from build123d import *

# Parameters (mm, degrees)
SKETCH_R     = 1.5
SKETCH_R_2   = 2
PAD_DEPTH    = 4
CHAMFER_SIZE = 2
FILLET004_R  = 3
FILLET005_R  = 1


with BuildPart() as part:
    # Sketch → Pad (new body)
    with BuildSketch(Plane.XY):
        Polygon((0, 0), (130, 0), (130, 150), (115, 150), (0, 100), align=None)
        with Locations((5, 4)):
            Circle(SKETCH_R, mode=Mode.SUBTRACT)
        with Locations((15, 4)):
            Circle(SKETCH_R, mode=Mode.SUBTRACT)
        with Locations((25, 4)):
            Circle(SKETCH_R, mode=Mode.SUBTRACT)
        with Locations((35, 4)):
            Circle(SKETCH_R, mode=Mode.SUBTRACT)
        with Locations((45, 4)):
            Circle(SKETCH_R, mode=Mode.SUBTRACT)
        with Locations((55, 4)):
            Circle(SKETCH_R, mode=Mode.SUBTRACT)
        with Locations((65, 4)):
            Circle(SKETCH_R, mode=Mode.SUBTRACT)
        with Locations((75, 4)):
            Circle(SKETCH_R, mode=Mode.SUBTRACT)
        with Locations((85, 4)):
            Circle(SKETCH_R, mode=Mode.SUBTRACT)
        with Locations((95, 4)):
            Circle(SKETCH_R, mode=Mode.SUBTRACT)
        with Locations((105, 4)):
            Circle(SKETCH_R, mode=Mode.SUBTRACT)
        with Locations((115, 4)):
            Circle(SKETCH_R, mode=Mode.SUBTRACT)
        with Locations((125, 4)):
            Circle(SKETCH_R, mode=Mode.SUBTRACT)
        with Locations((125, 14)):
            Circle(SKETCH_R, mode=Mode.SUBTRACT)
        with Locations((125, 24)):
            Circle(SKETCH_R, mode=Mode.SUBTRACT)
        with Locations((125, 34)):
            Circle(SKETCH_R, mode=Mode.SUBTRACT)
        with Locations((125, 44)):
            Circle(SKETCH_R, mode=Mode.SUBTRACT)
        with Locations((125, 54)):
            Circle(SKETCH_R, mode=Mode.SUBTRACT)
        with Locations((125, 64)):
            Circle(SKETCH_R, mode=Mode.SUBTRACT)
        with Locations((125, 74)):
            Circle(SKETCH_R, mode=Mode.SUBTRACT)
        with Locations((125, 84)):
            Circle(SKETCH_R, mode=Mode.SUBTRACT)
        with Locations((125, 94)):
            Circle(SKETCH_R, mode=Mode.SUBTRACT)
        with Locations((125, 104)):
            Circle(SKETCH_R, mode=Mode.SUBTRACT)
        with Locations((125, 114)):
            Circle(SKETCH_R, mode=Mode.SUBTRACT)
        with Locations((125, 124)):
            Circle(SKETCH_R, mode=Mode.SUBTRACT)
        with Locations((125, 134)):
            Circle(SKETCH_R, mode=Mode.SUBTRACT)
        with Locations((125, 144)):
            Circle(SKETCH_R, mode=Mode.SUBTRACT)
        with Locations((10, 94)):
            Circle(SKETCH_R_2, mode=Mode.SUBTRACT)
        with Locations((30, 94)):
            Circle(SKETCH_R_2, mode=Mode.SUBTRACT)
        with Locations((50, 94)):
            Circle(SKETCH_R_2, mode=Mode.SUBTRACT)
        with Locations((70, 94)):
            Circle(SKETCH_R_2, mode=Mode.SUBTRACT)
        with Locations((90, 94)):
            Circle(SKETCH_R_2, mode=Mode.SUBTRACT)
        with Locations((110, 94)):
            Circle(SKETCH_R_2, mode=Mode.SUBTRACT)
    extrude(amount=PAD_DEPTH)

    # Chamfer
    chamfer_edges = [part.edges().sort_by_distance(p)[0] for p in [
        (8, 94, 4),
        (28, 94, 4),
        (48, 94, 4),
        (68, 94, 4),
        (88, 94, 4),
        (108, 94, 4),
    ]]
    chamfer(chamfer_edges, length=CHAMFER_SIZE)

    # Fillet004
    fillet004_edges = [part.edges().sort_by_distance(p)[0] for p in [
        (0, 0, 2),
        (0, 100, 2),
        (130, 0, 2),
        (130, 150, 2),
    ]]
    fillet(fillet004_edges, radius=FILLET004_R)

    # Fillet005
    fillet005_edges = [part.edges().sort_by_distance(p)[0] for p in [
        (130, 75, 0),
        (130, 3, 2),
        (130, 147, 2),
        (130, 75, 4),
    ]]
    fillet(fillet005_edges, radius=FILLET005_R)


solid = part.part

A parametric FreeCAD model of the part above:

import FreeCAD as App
import Part
import Sketcher


def edges_at(feature, points):
    """Names of the edges that pass closest to the given points."""
    edges = feature.Shape.Edges
    near = lambda p: min(range(len(edges)), key=lambda i: edges[i].distToShape(Part.Vertex(*p))[0])
    return sorted({f"Edge{near(p) + 1}" for p in points})


def add_polygon(sketch, points):
    """Adds a closed chain of lines whose ends are joined by coincident constraints."""
    first, n = sketch.GeometryCount, len(points)
    for a, b in zip(points, points[1:] + points[:1]):
        sketch.addGeometry(Part.LineSegment(App.Vector(*a, 0), App.Vector(*b, 0)), False)
    for i in range(n):
        sketch.addConstraint(Sketcher.Constraint("Coincident", first + i, 2, first + (i + 1) % n, 1))

doc = App.newDocument("Part")
body = doc.addObject("PartDesign::Body", "Body")

sketch1 = body.newObject("Sketcher::SketchObject", "Sketch")
sketch1.AttachmentSupport = (doc.getObject("XY_Plane"), [""])
sketch1.MapMode = "FlatFace"
add_polygon(sketch1, [(0, 0), (130, 0), (130, 150), (115, 150), (0, 100)])
sketch1.addGeometry(Part.Circle(App.Vector(5, 4, 0), App.Vector(0, 0, 1), 1.5), False)
sketch1.addGeometry(Part.Circle(App.Vector(15, 4, 0), App.Vector(0, 0, 1), 1.5), False)
sketch1.addGeometry(Part.Circle(App.Vector(25, 4, 0), App.Vector(0, 0, 1), 1.5), False)
sketch1.addGeometry(Part.Circle(App.Vector(35, 4, 0), App.Vector(0, 0, 1), 1.5), False)
sketch1.addGeometry(Part.Circle(App.Vector(45, 4, 0), App.Vector(0, 0, 1), 1.5), False)
sketch1.addGeometry(Part.Circle(App.Vector(55, 4, 0), App.Vector(0, 0, 1), 1.5), False)
sketch1.addGeometry(Part.Circle(App.Vector(65, 4, 0), App.Vector(0, 0, 1), 1.5), False)
sketch1.addGeometry(Part.Circle(App.Vector(75, 4, 0), App.Vector(0, 0, 1), 1.5), False)
sketch1.addGeometry(Part.Circle(App.Vector(85, 4, 0), App.Vector(0, 0, 1), 1.5), False)
sketch1.addGeometry(Part.Circle(App.Vector(95, 4, 0), App.Vector(0, 0, 1), 1.5), False)
sketch1.addGeometry(Part.Circle(App.Vector(105, 4, 0), App.Vector(0, 0, 1), 1.5), False)
sketch1.addGeometry(Part.Circle(App.Vector(115, 4, 0), App.Vector(0, 0, 1), 1.5), False)
sketch1.addGeometry(Part.Circle(App.Vector(125, 4, 0), App.Vector(0, 0, 1), 1.5), False)
sketch1.addGeometry(Part.Circle(App.Vector(125, 14, 0), App.Vector(0, 0, 1), 1.5), False)
sketch1.addGeometry(Part.Circle(App.Vector(125, 24, 0), App.Vector(0, 0, 1), 1.5), False)
sketch1.addGeometry(Part.Circle(App.Vector(125, 34, 0), App.Vector(0, 0, 1), 1.5), False)
sketch1.addGeometry(Part.Circle(App.Vector(125, 44, 0), App.Vector(0, 0, 1), 1.5), False)
sketch1.addGeometry(Part.Circle(App.Vector(125, 54, 0), App.Vector(0, 0, 1), 1.5), False)
sketch1.addGeometry(Part.Circle(App.Vector(125, 64, 0), App.Vector(0, 0, 1), 1.5), False)
sketch1.addGeometry(Part.Circle(App.Vector(10, 94, 0), App.Vector(0, 0, 1), 2), False)
sketch1.addGeometry(Part.Circle(App.Vector(30, 94, 0), App.Vector(0, 0, 1), 2), False)
sketch1.addGeometry(Part.Circle(App.Vector(50, 94, 0), App.Vector(0, 0, 1), 2), False)
sketch1.addGeometry(Part.Circle(App.Vector(70, 94, 0), App.Vector(0, 0, 1), 2), False)
sketch1.addGeometry(Part.Circle(App.Vector(90, 94, 0), App.Vector(0, 0, 1), 2), False)
sketch1.addGeometry(Part.Circle(App.Vector(125, 74, 0), App.Vector(0, 0, 1), 1.5), False)
sketch1.addGeometry(Part.Circle(App.Vector(125, 84, 0), App.Vector(0, 0, 1), 1.5), False)
sketch1.addGeometry(Part.Circle(App.Vector(110, 94, 0), App.Vector(0, 0, 1), 2), False)
sketch1.addGeometry(Part.Circle(App.Vector(125, 94, 0), App.Vector(0, 0, 1), 1.5), False)
sketch1.addGeometry(Part.Circle(App.Vector(125, 104, 0), App.Vector(0, 0, 1), 1.5), False)
sketch1.addGeometry(Part.Circle(App.Vector(125, 114, 0), App.Vector(0, 0, 1), 1.5), False)
sketch1.addGeometry(Part.Circle(App.Vector(125, 124, 0), App.Vector(0, 0, 1), 1.5), False)
sketch1.addGeometry(Part.Circle(App.Vector(125, 134, 0), App.Vector(0, 0, 1), 1.5), False)
sketch1.addGeometry(Part.Circle(App.Vector(125, 144, 0), App.Vector(0, 0, 1), 1.5), False)
sketch1.addConstraint(Sketcher.Constraint("Horizontal", 0))
sketch1.addConstraint(Sketcher.Constraint("Vertical", 1))
sketch1.addConstraint(Sketcher.Constraint("Horizontal", 2))
sketch1.addConstraint(Sketcher.Constraint("Vertical", 4))
sketch1.addConstraint(Sketcher.Constraint("Coincident", 4, 2, -1, 1))
sketch1.addConstraint(Sketcher.Constraint("Equal", 5, 6))
sketch1.addConstraint(Sketcher.Constraint("Equal", 6, 7))
sketch1.addConstraint(Sketcher.Constraint("Equal", 7, 8))
sketch1.addConstraint(Sketcher.Constraint("Equal", 8, 9))
sketch1.addConstraint(Sketcher.Constraint("Equal", 9, 10))
sketch1.addConstraint(Sketcher.Constraint("Equal", 10, 11))
sketch1.addConstraint(Sketcher.Constraint("Equal", 11, 12))
sketch1.addConstraint(Sketcher.Constraint("Equal", 12, 13))
sketch1.addConstraint(Sketcher.Constraint("Equal", 13, 14))
sketch1.addConstraint(Sketcher.Constraint("Equal", 14, 15))
sketch1.addConstraint(Sketcher.Constraint("Equal", 15, 16))
sketch1.addConstraint(Sketcher.Constraint("Equal", 16, 17))
sketch1.addConstraint(Sketcher.Constraint("Equal", 17, 18))
sketch1.addConstraint(Sketcher.Constraint("Equal", 18, 19))
sketch1.addConstraint(Sketcher.Constraint("Equal", 19, 20))
sketch1.addConstraint(Sketcher.Constraint("Equal", 20, 21))
sketch1.addConstraint(Sketcher.Constraint("Equal", 21, 22))
sketch1.addConstraint(Sketcher.Constraint("Equal", 22, 23))
sketch1.addConstraint(Sketcher.Constraint("Equal", 24, 25))
sketch1.addConstraint(Sketcher.Constraint("Equal", 25, 26))
sketch1.addConstraint(Sketcher.Constraint("Equal", 26, 27))
sketch1.addConstraint(Sketcher.Constraint("Equal", 27, 28))
sketch1.addConstraint(Sketcher.Constraint("Equal", 23, 29))
sketch1.addConstraint(Sketcher.Constraint("Equal", 29, 30))
sketch1.addConstraint(Sketcher.Constraint("Equal", 28, 31))
sketch1.addConstraint(Sketcher.Constraint("Equal", 30, 32))
sketch1.addConstraint(Sketcher.Constraint("Equal", 32, 33))
sketch1.addConstraint(Sketcher.Constraint("Equal", 33, 34))
sketch1.addConstraint(Sketcher.Constraint("Equal", 34, 35))
sketch1.addConstraint(Sketcher.Constraint("Equal", 35, 36))
sketch1.addConstraint(Sketcher.Constraint("Equal", 36, 37))
sketch1.addConstraint(Sketcher.Constraint("Horizontal", 5, 3, 6, 3))
sketch1.addConstraint(Sketcher.Constraint("Horizontal", 6, 3, 7, 3))
sketch1.addConstraint(Sketcher.Constraint("Horizontal", 7, 3, 8, 3))
sketch1.addConstraint(Sketcher.Constraint("Horizontal", 8, 3, 9, 3))
sketch1.addConstraint(Sketcher.Constraint("Horizontal", 9, 3, 10, 3))
sketch1.addConstraint(Sketcher.Constraint("Horizontal", 10, 3, 11, 3))
sketch1.addConstraint(Sketcher.Constraint("Horizontal", 11, 3, 12, 3))
sketch1.addConstraint(Sketcher.Constraint("Horizontal", 12, 3, 13, 3))
sketch1.addConstraint(Sketcher.Constraint("Horizontal", 13, 3, 14, 3))
sketch1.addConstraint(Sketcher.Constraint("Horizontal", 14, 3, 15, 3))
sketch1.addConstraint(Sketcher.Constraint("Horizontal", 15, 3, 16, 3))
sketch1.addConstraint(Sketcher.Constraint("Horizontal", 16, 3, 17, 3))
sketch1.addConstraint(Sketcher.Constraint("Horizontal", 24, 3, 25, 3))
sketch1.addConstraint(Sketcher.Constraint("Horizontal", 25, 3, 26, 3))
sketch1.addConstraint(Sketcher.Constraint("Horizontal", 26, 3, 27, 3))
sketch1.addConstraint(Sketcher.Constraint("Horizontal", 27, 3, 28, 3))
sketch1.addConstraint(Sketcher.Constraint("Horizontal", 28, 3, 31, 3))
sketch1.addConstraint(Sketcher.Constraint("Horizontal", 31, 3, 32, 3))
sketch1.addConstraint(Sketcher.Constraint("Vertical", 17, 3, 18, 3))
sketch1.addConstraint(Sketcher.Constraint("Vertical", 18, 3, 19, 3))
sketch1.addConstraint(Sketcher.Constraint("Vertical", 19, 3, 20, 3))
sketch1.addConstraint(Sketcher.Constraint("Vertical", 20, 3, 21, 3))
sketch1.addConstraint(Sketcher.Constraint("Vertical", 21, 3, 22, 3))
sketch1.addConstraint(Sketcher.Constraint("Vertical", 22, 3, 23, 3))
sketch1.addConstraint(Sketcher.Constraint("Vertical", 23, 3, 29, 3))
sketch1.addConstraint(Sketcher.Constraint("Vertical", 29, 3, 30, 3))
sketch1.addConstraint(Sketcher.Constraint("Vertical", 30, 3, 32, 3))
sketch1.addConstraint(Sketcher.Constraint("Vertical", 32, 3, 33, 3))
sketch1.addConstraint(Sketcher.Constraint("Vertical", 33, 3, 34, 3))
sketch1.addConstraint(Sketcher.Constraint("Vertical", 34, 3, 35, 3))
sketch1.addConstraint(Sketcher.Constraint("Vertical", 35, 3, 36, 3))
sketch1.addConstraint(Sketcher.Constraint("Vertical", 36, 3, 37, 3))
sketch1.addConstraint(Sketcher.Constraint("Vertical", 16, 3, 2, 2))
sketch1.addConstraint(Sketcher.Constraint("Diameter", 5, 3.0))
sketch1.addConstraint(Sketcher.Constraint("Diameter", 24, 4.0))
sketch1.addConstraint(Sketcher.Constraint("DistanceX", 0, 1, 0, 2, 130.0))
sketch1.addConstraint(Sketcher.Constraint("DistanceX", 2, 2, 2, 1, 15.0))
sketch1.addConstraint(Sketcher.Constraint("DistanceY", 1, 1, 1, 2, 150.0))
sketch1.addConstraint(Sketcher.Constraint("DistanceY", 4, 2, 4, 1, 100.0))
sketch1.addConstraint(Sketcher.Constraint("DistanceX", -1, 1, 5, 3, 5.0))
sketch1.addConstraint(Sketcher.Constraint("DistanceY", -1, 1, 5, 3, 4.0))
sketch1.addConstraint(Sketcher.Constraint("DistanceX", -1, 1, 6, 3, 15.0))
sketch1.addConstraint(Sketcher.Constraint("DistanceX", -1, 1, 7, 3, 25.0))
sketch1.addConstraint(Sketcher.Constraint("DistanceX", -1, 1, 8, 3, 35.0))
sketch1.addConstraint(Sketcher.Constraint("DistanceX", -1, 1, 9, 3, 45.0))
sketch1.addConstraint(Sketcher.Constraint("DistanceX", -1, 1, 10, 3, 55.0))
sketch1.addConstraint(Sketcher.Constraint("DistanceX", -1, 1, 11, 3, 65.0))
sketch1.addConstraint(Sketcher.Constraint("DistanceX", -1, 1, 12, 3, 75.0))
sketch1.addConstraint(Sketcher.Constraint("DistanceX", -1, 1, 13, 3, 85.0))
sketch1.addConstraint(Sketcher.Constraint("DistanceX", -1, 1, 14, 3, 95.0))
sketch1.addConstraint(Sketcher.Constraint("DistanceX", -1, 1, 15, 3, 105.0))
sketch1.addConstraint(Sketcher.Constraint("DistanceX", -1, 1, 17, 3, 125.0))
sketch1.addConstraint(Sketcher.Constraint("DistanceY", -1, 1, 18, 3, 14.0))
sketch1.addConstraint(Sketcher.Constraint("DistanceY", -1, 1, 19, 3, 24.0))
sketch1.addConstraint(Sketcher.Constraint("DistanceY", -1, 1, 20, 3, 34.0))
sketch1.addConstraint(Sketcher.Constraint("DistanceY", -1, 1, 21, 3, 44.0))
sketch1.addConstraint(Sketcher.Constraint("DistanceY", -1, 1, 22, 3, 54.0))
sketch1.addConstraint(Sketcher.Constraint("DistanceY", -1, 1, 23, 3, 64.0))
sketch1.addConstraint(Sketcher.Constraint("DistanceX", -1, 1, 24, 3, 10.0))
sketch1.addConstraint(Sketcher.Constraint("DistanceY", -1, 1, 24, 3, 94.0))
sketch1.addConstraint(Sketcher.Constraint("DistanceX", -1, 1, 25, 3, 30.0))
sketch1.addConstraint(Sketcher.Constraint("DistanceX", -1, 1, 26, 3, 50.0))
sketch1.addConstraint(Sketcher.Constraint("DistanceX", -1, 1, 27, 3, 70.0))
sketch1.addConstraint(Sketcher.Constraint("DistanceX", -1, 1, 28, 3, 90.0))
sketch1.addConstraint(Sketcher.Constraint("DistanceY", -1, 1, 29, 3, 74.0))
sketch1.addConstraint(Sketcher.Constraint("DistanceY", -1, 1, 30, 3, 84.0))
sketch1.addConstraint(Sketcher.Constraint("DistanceX", -1, 1, 31, 3, 110.0))
sketch1.addConstraint(Sketcher.Constraint("DistanceY", -1, 1, 33, 3, 104.0))
sketch1.addConstraint(Sketcher.Constraint("DistanceY", -1, 1, 34, 3, 114.0))
sketch1.addConstraint(Sketcher.Constraint("DistanceY", -1, 1, 35, 3, 124.0))
sketch1.addConstraint(Sketcher.Constraint("DistanceY", -1, 1, 36, 3, 134.0))
sketch1.addConstraint(Sketcher.Constraint("DistanceY", -1, 1, 37, 3, 144.0))
pad1 = body.newObject("PartDesign::Pad", "Pad")
pad1.Profile = sketch1
pad1.Length = 4
doc.recompute()

chamfer = body.newObject("PartDesign::Chamfer", "Chamfer")
chamfer.Base = (pad1, edges_at(pad1, [
    (8, 94, 4),
    (28, 94, 4),
    (48, 94, 4),
    (68, 94, 4),
    (88, 94, 4),
    (108, 94, 4),
]))
chamfer.Size = 2
doc.recompute()

fillet = body.newObject("PartDesign::Fillet", "Fillet")
fillet.Base = (chamfer, edges_at(chamfer, [
    (0, 0, 2),
    (0, 100, 2),
    (130, 0, 2),
    (130, 150, 2),
]))
fillet.Radius = 3
doc.recompute()

fillet2 = body.newObject("PartDesign::Fillet", "Fillet001")
fillet2.Base = (fillet, edges_at(fillet, [
    (130, 75, 0),
    (130, 3, 2),
    (130, 147, 2),
    (130, 75, 4),
]))
fillet2.Radius = 1

doc.recompute()
